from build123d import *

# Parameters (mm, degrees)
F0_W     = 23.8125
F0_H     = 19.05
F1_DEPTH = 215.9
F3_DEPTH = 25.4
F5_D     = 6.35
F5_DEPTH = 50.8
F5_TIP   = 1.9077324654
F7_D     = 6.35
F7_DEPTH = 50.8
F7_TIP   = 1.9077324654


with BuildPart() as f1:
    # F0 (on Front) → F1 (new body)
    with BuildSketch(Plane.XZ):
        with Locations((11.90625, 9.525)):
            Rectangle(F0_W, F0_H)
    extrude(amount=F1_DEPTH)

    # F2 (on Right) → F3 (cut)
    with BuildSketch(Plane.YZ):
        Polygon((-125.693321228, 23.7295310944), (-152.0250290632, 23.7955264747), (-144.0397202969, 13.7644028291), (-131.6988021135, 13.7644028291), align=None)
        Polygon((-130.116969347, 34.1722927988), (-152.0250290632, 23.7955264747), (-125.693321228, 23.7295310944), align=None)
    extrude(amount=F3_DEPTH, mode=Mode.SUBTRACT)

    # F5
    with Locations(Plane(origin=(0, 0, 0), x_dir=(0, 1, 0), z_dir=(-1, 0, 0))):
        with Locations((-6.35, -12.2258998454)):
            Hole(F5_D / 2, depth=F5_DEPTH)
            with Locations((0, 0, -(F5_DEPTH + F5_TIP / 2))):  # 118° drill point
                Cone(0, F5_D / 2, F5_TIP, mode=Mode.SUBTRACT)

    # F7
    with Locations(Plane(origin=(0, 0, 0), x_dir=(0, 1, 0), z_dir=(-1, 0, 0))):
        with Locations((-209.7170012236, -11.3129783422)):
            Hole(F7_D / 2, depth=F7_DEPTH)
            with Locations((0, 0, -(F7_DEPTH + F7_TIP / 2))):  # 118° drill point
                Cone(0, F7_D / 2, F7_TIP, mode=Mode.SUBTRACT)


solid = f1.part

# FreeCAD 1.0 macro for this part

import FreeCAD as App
import Part
import Sketcher
from FreeCAD import Vector
Q = App.Units.Quantity

doc = App.newDocument("Part")
body = doc.addObject("PartDesign::Body", "Body")

# Sketch on XZ plane
sketch1 = doc.addObject("Sketcher::SketchObject", "Sketch")
body.addObject(sketch1)
sketch1.AttachmentSupport = (doc.XZ_Plane, [""])
sketch1.MapMode = "FlatFace"
sketch1.addGeometry([
    Part.LineSegment(Vector(0, 19, 0), Vector(0, 0, 0)),
    Part.LineSegment(Vector(0, 0, 0), Vector(24, 0, 0)),
    Part.LineSegment(Vector(24, 0, 0), Vector(24, 19, 0)),
    Part.LineSegment(Vector(24, 19, 0), Vector(0, 19, 0)),
], False)
sketch1.addConstraint([
    Sketcher.Constraint("Coincident", 0, 2, 1, 1),
    Sketcher.Constraint("Coincident", 1, 2, 2, 1),
    Sketcher.Constraint("Coincident", 2, 2, 3, 1),
    Sketcher.Constraint("Coincident", 3, 2, 0, 1),
    Sketcher.Constraint("Vertical", 0),
    Sketcher.Constraint("Horizontal", 1),
    Sketcher.Constraint("Vertical", 2),
    Sketcher.Constraint("Horizontal", 3),
    Sketcher.Constraint("Coincident", 0, 2, -1, 1),
    Sketcher.Constraint("DistanceY", 0, 2, 0, 1, Q("0.75 in")),
    Sketcher.Constraint("DistanceX", 1, 1, 1, 2, Q("0.9375 in")),
])
pad1 = doc.addObject("PartDesign::Pad", "Pad")
body.addObject(pad1)
pad1.Profile = sketch1
pad1.Length = Q("8.5 in")

# Sketch on YZ plane
sketch2 = doc.addObject("Sketcher::SketchObject", "Sketch001")
body.addObject(sketch2)
sketch2.AttachmentSupport = (doc.YZ_Plane, [""])
sketch2.MapMode = "FlatFace"
sketch2.addGeometry([
    Part.LineSegment(Vector(-152, 24, 0), Vector(-144, 14, 0)),  # 0
    Part.LineSegment(Vector(-144, 14, 0), Vector(-132, 14, 0)),  # 1
    Part.LineSegment(Vector(-132, 14, 0), Vector(-126, 24, 0)),  # 2
    Part.LineSegment(Vector(-126, 24, 0), Vector(-130, 34, 0)),  # 3
    Part.LineSegment(Vector(-130, 34, 0), Vector(-152, 24, 0)),  # 4
], False)
sketch2.addConstraint([
    Sketcher.Constraint("Coincident", 0, 2, 1, 1),
    Sketcher.Constraint("Coincident", 1, 2, 2, 1),
    Sketcher.Constraint("Coincident", 2, 2, 3, 1),
    Sketcher.Constraint("Coincident", 3, 2, 4, 1),
    Sketcher.Constraint("Coincident", 4, 2, 0, 1),
    Sketcher.Constraint("Horizontal", 1),
    Sketcher.Constraint("DistanceX", 1, 1, 1, 2, 12.340918),
    Sketcher.Constraint("DistanceX", 0, 2, 2, 2, 18.346399),
    Sketcher.Constraint("Distance", 0, 12.821412),
    Sketcher.Constraint("DistanceX", 0, 2, -1, 1, 144.03972),
    Sketcher.Constraint("DistanceY", -1, 1, 2, 2, 23.729531),
    Sketcher.Constraint("DistanceX", 3, 2, -1, 1, 130.116969),
    Sketcher.Constraint("DistanceX", 4, 2, -1, 1, 152.025029),
    Sketcher.Constraint("DistanceY", 1, 2, 2, 2, 9.965128),
    Sketcher.Constraint("DistanceY", 2, 2, 3, 2, 10.442762),
])
pocket1 = doc.addObject("PartDesign::Pocket", "Pocket")
body.addObject(pocket1)
pocket1.Profile = sketch2
pocket1.Length = Q("1 in")
pocket1.Reversed = True

# Sketch on YZ plane
sketch3 = doc.addObject("Sketcher::SketchObject", "Sketch002")
body.addObject(sketch3)
sketch3.AttachmentSupport = (doc.YZ_Plane, [""])
sketch3.MapMode = "FlatFace"
sketch3.addGeometry(Part.Circle(Vector(-6.3, 12.2, 0), Vector(0, 0, 1), 3.2), False)
sketch3.addConstraint([
    Sketcher.Constraint("Diameter", 0, Q("0.25 in")),
    Sketcher.Constraint("DistanceX", 0, 3, -1, 1, Q("0.25 in")),
    Sketcher.Constraint("DistanceY", -1, 1, 0, 3, 12.2259),
])
doc.recompute()
hole = doc.addObject("PartDesign::Hole", "Hole")
body.addObject(hole)
hole.Profile = sketch3
hole.ThreadType = "None"
hole.Diameter = Q("0.25 in")
hole.DepthType = "Dimension"
hole.Depth = Q("2 in")
hole.DrillPoint = "Angled"
hole.DrillPointAngle = 118
hole.Reversed = True

# Sketch on YZ plane
sketch4 = doc.addObject("Sketcher::SketchObject", "Sketch003")
body.addObject(sketch4)
sketch4.AttachmentSupport = (doc.YZ_Plane, [""])
sketch4.MapMode = "FlatFace"
sketch4.addGeometry(Part.Circle(Vector(-209.7, 11.3, 0), Vector(0, 0, 1), 3.2), False)
sketch4.addConstraint([
    Sketcher.Constraint("Diameter", 0, Q("0.25 in")),
    Sketcher.Constraint("DistanceX", 0, 3, -1, 1, 209.717001),
    Sketcher.Constraint("DistanceY", -1, 1, 0, 3, 11.312978),
])
doc.recompute()
hole2 = doc.addObject("PartDesign::Hole", "Hole001")
body.addObject(hole2)
hole2.Profile = sketch4
hole2.ThreadType = "None"
hole2.Diameter = Q("0.25 in")
hole2.DepthType = "Dimension"
hole2.Depth = Q("2 in")
hole2.DrillPoint = "Angled"
hole2.DrillPointAngle = 118
hole2.Reversed = True

doc.recompute()
